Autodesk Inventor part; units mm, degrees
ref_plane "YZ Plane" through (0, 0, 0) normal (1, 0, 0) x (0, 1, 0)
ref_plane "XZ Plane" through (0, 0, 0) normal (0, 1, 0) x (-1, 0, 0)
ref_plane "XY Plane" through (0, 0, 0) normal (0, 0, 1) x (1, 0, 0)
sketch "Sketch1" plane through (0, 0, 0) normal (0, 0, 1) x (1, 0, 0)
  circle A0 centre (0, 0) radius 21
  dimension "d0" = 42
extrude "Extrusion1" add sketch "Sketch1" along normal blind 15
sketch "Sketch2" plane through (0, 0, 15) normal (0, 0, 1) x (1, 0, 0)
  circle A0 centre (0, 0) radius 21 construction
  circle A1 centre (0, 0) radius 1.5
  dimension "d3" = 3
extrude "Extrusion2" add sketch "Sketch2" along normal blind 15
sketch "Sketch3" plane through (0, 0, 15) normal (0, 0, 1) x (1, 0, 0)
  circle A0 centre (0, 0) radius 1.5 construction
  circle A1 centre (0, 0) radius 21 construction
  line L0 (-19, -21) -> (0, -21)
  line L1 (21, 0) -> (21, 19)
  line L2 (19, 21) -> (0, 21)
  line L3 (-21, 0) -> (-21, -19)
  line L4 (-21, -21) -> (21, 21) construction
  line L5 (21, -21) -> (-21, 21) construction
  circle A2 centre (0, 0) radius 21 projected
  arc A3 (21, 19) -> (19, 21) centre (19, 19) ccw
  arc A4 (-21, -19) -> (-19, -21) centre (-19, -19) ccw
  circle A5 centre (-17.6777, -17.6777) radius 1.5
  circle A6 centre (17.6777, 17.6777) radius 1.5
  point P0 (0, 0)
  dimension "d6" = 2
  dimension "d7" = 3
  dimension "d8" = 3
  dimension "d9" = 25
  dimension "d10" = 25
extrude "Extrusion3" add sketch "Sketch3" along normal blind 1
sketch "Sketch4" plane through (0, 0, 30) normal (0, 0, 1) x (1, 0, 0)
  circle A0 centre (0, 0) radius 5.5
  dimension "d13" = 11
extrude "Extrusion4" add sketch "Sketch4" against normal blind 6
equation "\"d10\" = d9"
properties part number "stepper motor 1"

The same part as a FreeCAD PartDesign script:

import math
import FreeCAD as App
import Part
import Sketcher
Q = App.Units.Quantity

doc = App.newDocument("Part")
body = doc.addObject("PartDesign::Body", "Body")

sketch1 = body.newObject("Sketcher::SketchObject", "Sketch")
sketch1.AttachmentSupport = (doc.getObject("XY_Plane"), [""])
sketch1.MapMode = "FlatFace"
sketch1.addGeometry(Part.Circle(App.Vector(0, 0, 0), App.Vector(0, 0, 1), 21), False)
sketch1.addConstraint([
    Sketcher.Constraint("Coincident", 0, 3, -1, 1),
    Sketcher.Constraint("Diameter", 0, Q("42 mm")),
])
pad1 = body.newObject("PartDesign::Pad", "Pad")
pad1.Profile = sketch1
pad1.Length = 15

sketch2 = body.newObject("Sketcher::SketchObject", "Sketch001")
sketch2.AttachmentSupport = (doc.getObject("XY_Plane"), [""])
sketch2.MapMode = "FlatFace"
sketch2.AttachmentOffset = App.Placement(App.Vector(0, 0, 15), App.Rotation())
sketch2.addGeometry(Part.Circle(App.Vector(0, 0, 0), App.Vector(0, 0, 1), 1.5), False)
sketch2.addConstraint([
    Sketcher.Constraint("Coincident", 0, 3, -1, 1),
    Sketcher.Constraint("Diameter", 0, Q("3 mm")),
])
pad2 = body.newObject("PartDesign::Pad", "Pad001")
pad2.Profile = sketch2
pad2.Length = 15

sketch3 = body.newObject("Sketcher::SketchObject", "Sketch002")
sketch3.AttachmentSupport = (doc.getObject("XY_Plane"), [""])
sketch3.MapMode = "FlatFace"
sketch3.AttachmentOffset = App.Placement(App.Vector(0, 0, 15), App.Rotation())
sketch3.addGeometry([
    Part.ArcOfCircle(Part.Circle(App.Vector(-19, -19, 0), App.Vector(0, 0, 1), 2), math.radians(180), math.radians(270)),
    Part.LineSegment(App.Vector(-19, -21, 0), App.Vector(0, -21, 0)),
    Part.ArcOfCircle(Part.Circle(App.Vector(0, 0, 0), App.Vector(0, 0, 1), 21), math.radians(-90), math.radians(0)),
    Part.LineSegment(App.Vector(21, 0, 0), App.Vector(21, 19, 0)),
    Part.ArcOfCircle(Part.Circle(App.Vector(19, 19, 0), App.Vector(0, 0, 1), 2), math.radians(0), math.radians(90)),
    Part.LineSegment(App.Vector(19, 21, 0), App.Vector(0, 21, 0)),
    Part.ArcOfCircle(Part.Circle(App.Vector(0, 0, 0), App.Vector(0, 0, 1), 21), math.radians(90), math.radians(180)),
    Part.LineSegment(App.Vector(-21, 0, 0), App.Vector(-21, -19, 0)),
    Part.Circle(App.Vector(-17.6777, -17.6777, 0), App.Vector(0, 0, 1), 1.5),
    Part.Circle(App.Vector(17.6777, 17.6777, 0), App.Vector(0, 0, 1), 1.5),
], False)
sketch3.addConstraint([
    Sketcher.Constraint("Tangent", 0, 2, 1, 1),
    Sketcher.Constraint("Tangent", 1, 2, 2, 1),
    Sketcher.Constraint("Tangent", 2, 2, 3, 1),
    Sketcher.Constraint("Tangent", 3, 2, 4, 1),
    Sketcher.Constraint("Tangent", 4, 2, 5, 1),
    Sketcher.Constraint("Tangent", 5, 2, 6, 1),
    Sketcher.Constraint("Tangent", 6, 2, 7, 1),
    Sketcher.Constraint("Tangent", 7, 2, 0, 1),
    Sketcher.Constraint("Horizontal", 1),
    Sketcher.Constraint("Vertical", 3),
    Sketcher.Constraint("Horizontal", 5),
    Sketcher.Constraint("Vertical", 7),
    Sketcher.Constraint("Coincident", 2, 3, -1, 1),
    Sketcher.Constraint("Coincident", 6, 3, -1, 1),
    Sketcher.Constraint("Equal", 0, 4),
    Sketcher.Constraint("Equal", 2, 6),
    Sketcher.Constraint("Equal", 8, 9),
    Sketcher.Constraint("Symmetric", 8, 3, 9, 3, -1, 1),
    Sketcher.Constraint("Diameter", 8, Q("3 mm")),
    Sketcher.Constraint("Radius", 0, Q("2 mm")),
    Sketcher.Constraint("Radius", 2, Q("21 mm")),
    Sketcher.Constraint("DistanceX", 8, 3, -1, 1, Q("17.6777 mm")),
    Sketcher.Constraint("DistanceY", 8, 3, -1, 1, Q("17.6777 mm")),
])
pad3 = body.newObject("PartDesign::Pad", "Pad002")
pad3.Profile = sketch3
pad3.Length = 1

sketch4 = body.newObject("Sketcher::SketchObject", "Sketch003")
sketch4.AttachmentSupport = (doc.getObject("XY_Plane"), [""])
sketch4.MapMode = "FlatFace"
sketch4.AttachmentOffset = App.Placement(App.Vector(0, 0, 30), App.Rotation())
sketch4.addGeometry(Part.Circle(App.Vector(0, 0, 0), App.Vector(0, 0, 1), 5.5), False)
sketch4.addConstraint([
    Sketcher.Constraint("Coincident", 0, 3, -1, 1),
    Sketcher.Constraint("Diameter", 0, Q("11 mm")),
])
pad4 = body.newObject("PartDesign::Pad", "Pad003")
pad4.Profile = sketch4
pad4.Length = 6
pad4.Reversed = True

doc.recompute()
